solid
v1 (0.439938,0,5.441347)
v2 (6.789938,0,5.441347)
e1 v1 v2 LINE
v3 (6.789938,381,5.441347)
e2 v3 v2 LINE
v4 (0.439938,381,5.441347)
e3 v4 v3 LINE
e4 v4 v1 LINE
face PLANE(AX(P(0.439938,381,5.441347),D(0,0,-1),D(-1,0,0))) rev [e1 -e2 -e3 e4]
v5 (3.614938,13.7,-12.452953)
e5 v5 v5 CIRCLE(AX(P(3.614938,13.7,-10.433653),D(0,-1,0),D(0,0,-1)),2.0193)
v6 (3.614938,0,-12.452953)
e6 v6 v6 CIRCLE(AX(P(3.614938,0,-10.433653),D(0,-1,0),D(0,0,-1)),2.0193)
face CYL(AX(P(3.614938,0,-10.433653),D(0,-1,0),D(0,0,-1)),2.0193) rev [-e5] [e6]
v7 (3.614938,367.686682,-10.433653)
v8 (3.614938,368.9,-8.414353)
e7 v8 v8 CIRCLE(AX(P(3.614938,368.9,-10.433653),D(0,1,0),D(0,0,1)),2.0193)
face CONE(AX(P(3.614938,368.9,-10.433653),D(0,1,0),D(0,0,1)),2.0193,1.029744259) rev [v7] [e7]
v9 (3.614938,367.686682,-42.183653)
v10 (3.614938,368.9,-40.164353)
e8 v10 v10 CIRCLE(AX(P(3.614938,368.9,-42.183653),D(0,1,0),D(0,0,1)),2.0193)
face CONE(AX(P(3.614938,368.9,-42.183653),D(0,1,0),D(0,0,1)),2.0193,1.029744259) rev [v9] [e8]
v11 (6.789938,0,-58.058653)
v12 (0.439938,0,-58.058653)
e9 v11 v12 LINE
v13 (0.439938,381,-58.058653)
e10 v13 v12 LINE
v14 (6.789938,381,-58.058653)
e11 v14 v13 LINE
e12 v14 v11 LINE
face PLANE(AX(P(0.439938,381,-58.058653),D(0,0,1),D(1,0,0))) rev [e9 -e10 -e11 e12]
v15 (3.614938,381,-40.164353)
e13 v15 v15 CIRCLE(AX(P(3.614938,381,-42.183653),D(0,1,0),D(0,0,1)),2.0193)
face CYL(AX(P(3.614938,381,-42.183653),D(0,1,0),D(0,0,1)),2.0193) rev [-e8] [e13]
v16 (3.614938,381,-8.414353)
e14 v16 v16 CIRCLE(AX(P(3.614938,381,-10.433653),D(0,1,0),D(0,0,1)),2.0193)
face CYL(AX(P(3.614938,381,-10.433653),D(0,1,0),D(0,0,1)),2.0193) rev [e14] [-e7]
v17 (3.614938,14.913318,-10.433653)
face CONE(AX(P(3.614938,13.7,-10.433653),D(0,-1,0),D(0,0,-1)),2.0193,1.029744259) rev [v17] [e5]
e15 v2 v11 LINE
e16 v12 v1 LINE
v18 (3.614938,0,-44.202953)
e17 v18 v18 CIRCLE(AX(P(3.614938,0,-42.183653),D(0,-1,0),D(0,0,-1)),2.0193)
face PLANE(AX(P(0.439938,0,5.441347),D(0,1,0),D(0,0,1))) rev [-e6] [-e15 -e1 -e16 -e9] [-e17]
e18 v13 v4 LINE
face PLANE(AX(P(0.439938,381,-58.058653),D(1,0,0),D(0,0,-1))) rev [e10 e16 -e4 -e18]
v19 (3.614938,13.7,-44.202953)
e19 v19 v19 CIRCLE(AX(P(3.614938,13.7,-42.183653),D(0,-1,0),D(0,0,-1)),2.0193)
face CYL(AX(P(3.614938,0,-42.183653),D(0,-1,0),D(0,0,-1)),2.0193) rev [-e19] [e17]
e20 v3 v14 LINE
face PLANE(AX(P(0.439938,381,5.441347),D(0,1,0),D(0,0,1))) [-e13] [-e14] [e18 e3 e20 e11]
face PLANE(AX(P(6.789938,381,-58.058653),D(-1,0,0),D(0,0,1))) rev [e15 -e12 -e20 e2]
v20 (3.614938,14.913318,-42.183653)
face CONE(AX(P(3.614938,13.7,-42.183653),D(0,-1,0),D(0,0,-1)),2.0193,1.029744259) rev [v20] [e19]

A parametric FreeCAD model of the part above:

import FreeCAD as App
import Part
import Sketcher

V = App.Vector
Q = App.Units.Quantity


def add_polygon(sketch, points):
    """Adds a closed chain of lines whose ends are joined by coincident constraints."""
    first, n = sketch.GeometryCount, len(points)
    for a, b in zip(points, points[1:] + points[:1]):
        sketch.addGeometry(Part.LineSegment(App.Vector(*a, 0), App.Vector(*b, 0)), False)
    for i in range(n):
        sketch.addConstraint(Sketcher.Constraint("Coincident", first + i, 2, first + (i + 1) % n, 1))

doc = App.newDocument("Part")
body = doc.addObject("PartDesign::Body", "Body")

sketch1 = body.newObject("Sketcher::SketchObject", "Sketch")
sketch1.AttachmentSupport = (doc.getObject("XZ_Plane"), [""])
sketch1.MapMode = "FlatFace"
add_polygon(sketch1, [(0, -58), (0, 5), (7, 5), (7, -58)])
sketch1.addConstraint(Sketcher.Constraint("Vertical", 0))
sketch1.addConstraint(Sketcher.Constraint("Horizontal", 1))
sketch1.addConstraint(Sketcher.Constraint("Vertical", 2))
sketch1.addConstraint(Sketcher.Constraint("Horizontal", 3))
sketch1.addConstraint(Sketcher.Constraint("DistanceY", 0, 1, 0, 2, Q("2.5 in")))
sketch1.addConstraint(Sketcher.Constraint("DistanceX", 1, 1, 1, 2, Q("0.25 in")))
sketch1.addConstraint(Sketcher.Constraint("DistanceX", -1, 1, 0, 2, 0.439938))
sketch1.addConstraint(Sketcher.Constraint("DistanceY", -1, 1, 0, 2, 5.441347))
pad1 = body.newObject("PartDesign::Pad", "Pad")
pad1.Profile = sketch1
pad1.Length = Q("15 in")
pad1.Reversed = True

sketch2 = body.newObject("Sketcher::SketchObject", "Sketch001")
sketch2.AttachmentSupport = (doc.getObject("XZ_Plane"), [""])
sketch2.MapMode = "FlatFace"
sketch2.AttachmentOffset = App.Placement(V(0, 0, -15 * 25.4), App.Rotation())
sketch2.addGeometry(Part.Circle(V(3.6, -42.2, 0), V(0, 0, 1), 2), False)
sketch2.addGeometry(Part.Circle(V(3.6, -10.4, 0), V(0, 0, 1), 2), False)
sketch2.addConstraint(Sketcher.Constraint("Equal", 0, 1))
sketch2.addConstraint(Sketcher.Constraint("Vertical", 0, 3, 1, 3))
sketch2.addConstraint(Sketcher.Constraint("Diameter", 0, Q("0.159 in")))
sketch2.addConstraint(Sketcher.Constraint("DistanceY", 0, 3, 1, 3, Q("1.25 in")))
sketch2.addConstraint(Sketcher.Constraint("DistanceX", -1, 1, 0, 3, 3.614938))
sketch2.addConstraint(Sketcher.Constraint("DistanceY", 0, 3, -1, 1, 42.183653))
doc.recompute()
hole = body.newObject("PartDesign::Hole", "Hole")
hole.Profile = sketch2
hole.ThreadType = "None"
hole.Diameter = Q("0.159 in")
hole.DepthType = "Dimension"
hole.Depth = 12.1
hole.DrillPoint = "Angled"
hole.DrillPointAngle = 118
hole.Reversed = True

sketch3 = body.newObject("Sketcher::SketchObject", "Sketch002")
sketch3.AttachmentSupport = (doc.getObject("XZ_Plane"), [""])
sketch3.MapMode = "FlatFace"
sketch3.addGeometry(Part.Circle(V(3.6, -10.4, 0), V(0, 0, 1), 2), False)
sketch3.addGeometry(Part.Circle(V(3.6, -42.2, 0), V(0, 0, 1), 2), False)
sketch3.addConstraint(Sketcher.Constraint("Equal", 0, 1))
sketch3.addConstraint(Sketcher.Constraint("Vertical", 0, 3, 1, 3))
sketch3.addConstraint(Sketcher.Constraint("Diameter", 0, Q("0.159 in")))
sketch3.addConstraint(Sketcher.Constraint("DistanceY", 1, 3, 0, 3, Q("1.25 in")))
sketch3.addConstraint(Sketcher.Constraint("DistanceX", -1, 1, 0, 3, 3.614938))
sketch3.addConstraint(Sketcher.Constraint("DistanceY", 0, 3, -1, 1, 10.433653))
doc.recompute()
hole2 = body.newObject("PartDesign::Hole", "Hole001")
hole2.Profile = sketch3
hole2.ThreadType = "None"
hole2.Diameter = Q("0.159 in")
hole2.DepthType = "Dimension"
hole2.Depth = 13.7
hole2.DrillPoint = "Angled"
hole2.DrillPointAngle = 118

doc.recompute()
